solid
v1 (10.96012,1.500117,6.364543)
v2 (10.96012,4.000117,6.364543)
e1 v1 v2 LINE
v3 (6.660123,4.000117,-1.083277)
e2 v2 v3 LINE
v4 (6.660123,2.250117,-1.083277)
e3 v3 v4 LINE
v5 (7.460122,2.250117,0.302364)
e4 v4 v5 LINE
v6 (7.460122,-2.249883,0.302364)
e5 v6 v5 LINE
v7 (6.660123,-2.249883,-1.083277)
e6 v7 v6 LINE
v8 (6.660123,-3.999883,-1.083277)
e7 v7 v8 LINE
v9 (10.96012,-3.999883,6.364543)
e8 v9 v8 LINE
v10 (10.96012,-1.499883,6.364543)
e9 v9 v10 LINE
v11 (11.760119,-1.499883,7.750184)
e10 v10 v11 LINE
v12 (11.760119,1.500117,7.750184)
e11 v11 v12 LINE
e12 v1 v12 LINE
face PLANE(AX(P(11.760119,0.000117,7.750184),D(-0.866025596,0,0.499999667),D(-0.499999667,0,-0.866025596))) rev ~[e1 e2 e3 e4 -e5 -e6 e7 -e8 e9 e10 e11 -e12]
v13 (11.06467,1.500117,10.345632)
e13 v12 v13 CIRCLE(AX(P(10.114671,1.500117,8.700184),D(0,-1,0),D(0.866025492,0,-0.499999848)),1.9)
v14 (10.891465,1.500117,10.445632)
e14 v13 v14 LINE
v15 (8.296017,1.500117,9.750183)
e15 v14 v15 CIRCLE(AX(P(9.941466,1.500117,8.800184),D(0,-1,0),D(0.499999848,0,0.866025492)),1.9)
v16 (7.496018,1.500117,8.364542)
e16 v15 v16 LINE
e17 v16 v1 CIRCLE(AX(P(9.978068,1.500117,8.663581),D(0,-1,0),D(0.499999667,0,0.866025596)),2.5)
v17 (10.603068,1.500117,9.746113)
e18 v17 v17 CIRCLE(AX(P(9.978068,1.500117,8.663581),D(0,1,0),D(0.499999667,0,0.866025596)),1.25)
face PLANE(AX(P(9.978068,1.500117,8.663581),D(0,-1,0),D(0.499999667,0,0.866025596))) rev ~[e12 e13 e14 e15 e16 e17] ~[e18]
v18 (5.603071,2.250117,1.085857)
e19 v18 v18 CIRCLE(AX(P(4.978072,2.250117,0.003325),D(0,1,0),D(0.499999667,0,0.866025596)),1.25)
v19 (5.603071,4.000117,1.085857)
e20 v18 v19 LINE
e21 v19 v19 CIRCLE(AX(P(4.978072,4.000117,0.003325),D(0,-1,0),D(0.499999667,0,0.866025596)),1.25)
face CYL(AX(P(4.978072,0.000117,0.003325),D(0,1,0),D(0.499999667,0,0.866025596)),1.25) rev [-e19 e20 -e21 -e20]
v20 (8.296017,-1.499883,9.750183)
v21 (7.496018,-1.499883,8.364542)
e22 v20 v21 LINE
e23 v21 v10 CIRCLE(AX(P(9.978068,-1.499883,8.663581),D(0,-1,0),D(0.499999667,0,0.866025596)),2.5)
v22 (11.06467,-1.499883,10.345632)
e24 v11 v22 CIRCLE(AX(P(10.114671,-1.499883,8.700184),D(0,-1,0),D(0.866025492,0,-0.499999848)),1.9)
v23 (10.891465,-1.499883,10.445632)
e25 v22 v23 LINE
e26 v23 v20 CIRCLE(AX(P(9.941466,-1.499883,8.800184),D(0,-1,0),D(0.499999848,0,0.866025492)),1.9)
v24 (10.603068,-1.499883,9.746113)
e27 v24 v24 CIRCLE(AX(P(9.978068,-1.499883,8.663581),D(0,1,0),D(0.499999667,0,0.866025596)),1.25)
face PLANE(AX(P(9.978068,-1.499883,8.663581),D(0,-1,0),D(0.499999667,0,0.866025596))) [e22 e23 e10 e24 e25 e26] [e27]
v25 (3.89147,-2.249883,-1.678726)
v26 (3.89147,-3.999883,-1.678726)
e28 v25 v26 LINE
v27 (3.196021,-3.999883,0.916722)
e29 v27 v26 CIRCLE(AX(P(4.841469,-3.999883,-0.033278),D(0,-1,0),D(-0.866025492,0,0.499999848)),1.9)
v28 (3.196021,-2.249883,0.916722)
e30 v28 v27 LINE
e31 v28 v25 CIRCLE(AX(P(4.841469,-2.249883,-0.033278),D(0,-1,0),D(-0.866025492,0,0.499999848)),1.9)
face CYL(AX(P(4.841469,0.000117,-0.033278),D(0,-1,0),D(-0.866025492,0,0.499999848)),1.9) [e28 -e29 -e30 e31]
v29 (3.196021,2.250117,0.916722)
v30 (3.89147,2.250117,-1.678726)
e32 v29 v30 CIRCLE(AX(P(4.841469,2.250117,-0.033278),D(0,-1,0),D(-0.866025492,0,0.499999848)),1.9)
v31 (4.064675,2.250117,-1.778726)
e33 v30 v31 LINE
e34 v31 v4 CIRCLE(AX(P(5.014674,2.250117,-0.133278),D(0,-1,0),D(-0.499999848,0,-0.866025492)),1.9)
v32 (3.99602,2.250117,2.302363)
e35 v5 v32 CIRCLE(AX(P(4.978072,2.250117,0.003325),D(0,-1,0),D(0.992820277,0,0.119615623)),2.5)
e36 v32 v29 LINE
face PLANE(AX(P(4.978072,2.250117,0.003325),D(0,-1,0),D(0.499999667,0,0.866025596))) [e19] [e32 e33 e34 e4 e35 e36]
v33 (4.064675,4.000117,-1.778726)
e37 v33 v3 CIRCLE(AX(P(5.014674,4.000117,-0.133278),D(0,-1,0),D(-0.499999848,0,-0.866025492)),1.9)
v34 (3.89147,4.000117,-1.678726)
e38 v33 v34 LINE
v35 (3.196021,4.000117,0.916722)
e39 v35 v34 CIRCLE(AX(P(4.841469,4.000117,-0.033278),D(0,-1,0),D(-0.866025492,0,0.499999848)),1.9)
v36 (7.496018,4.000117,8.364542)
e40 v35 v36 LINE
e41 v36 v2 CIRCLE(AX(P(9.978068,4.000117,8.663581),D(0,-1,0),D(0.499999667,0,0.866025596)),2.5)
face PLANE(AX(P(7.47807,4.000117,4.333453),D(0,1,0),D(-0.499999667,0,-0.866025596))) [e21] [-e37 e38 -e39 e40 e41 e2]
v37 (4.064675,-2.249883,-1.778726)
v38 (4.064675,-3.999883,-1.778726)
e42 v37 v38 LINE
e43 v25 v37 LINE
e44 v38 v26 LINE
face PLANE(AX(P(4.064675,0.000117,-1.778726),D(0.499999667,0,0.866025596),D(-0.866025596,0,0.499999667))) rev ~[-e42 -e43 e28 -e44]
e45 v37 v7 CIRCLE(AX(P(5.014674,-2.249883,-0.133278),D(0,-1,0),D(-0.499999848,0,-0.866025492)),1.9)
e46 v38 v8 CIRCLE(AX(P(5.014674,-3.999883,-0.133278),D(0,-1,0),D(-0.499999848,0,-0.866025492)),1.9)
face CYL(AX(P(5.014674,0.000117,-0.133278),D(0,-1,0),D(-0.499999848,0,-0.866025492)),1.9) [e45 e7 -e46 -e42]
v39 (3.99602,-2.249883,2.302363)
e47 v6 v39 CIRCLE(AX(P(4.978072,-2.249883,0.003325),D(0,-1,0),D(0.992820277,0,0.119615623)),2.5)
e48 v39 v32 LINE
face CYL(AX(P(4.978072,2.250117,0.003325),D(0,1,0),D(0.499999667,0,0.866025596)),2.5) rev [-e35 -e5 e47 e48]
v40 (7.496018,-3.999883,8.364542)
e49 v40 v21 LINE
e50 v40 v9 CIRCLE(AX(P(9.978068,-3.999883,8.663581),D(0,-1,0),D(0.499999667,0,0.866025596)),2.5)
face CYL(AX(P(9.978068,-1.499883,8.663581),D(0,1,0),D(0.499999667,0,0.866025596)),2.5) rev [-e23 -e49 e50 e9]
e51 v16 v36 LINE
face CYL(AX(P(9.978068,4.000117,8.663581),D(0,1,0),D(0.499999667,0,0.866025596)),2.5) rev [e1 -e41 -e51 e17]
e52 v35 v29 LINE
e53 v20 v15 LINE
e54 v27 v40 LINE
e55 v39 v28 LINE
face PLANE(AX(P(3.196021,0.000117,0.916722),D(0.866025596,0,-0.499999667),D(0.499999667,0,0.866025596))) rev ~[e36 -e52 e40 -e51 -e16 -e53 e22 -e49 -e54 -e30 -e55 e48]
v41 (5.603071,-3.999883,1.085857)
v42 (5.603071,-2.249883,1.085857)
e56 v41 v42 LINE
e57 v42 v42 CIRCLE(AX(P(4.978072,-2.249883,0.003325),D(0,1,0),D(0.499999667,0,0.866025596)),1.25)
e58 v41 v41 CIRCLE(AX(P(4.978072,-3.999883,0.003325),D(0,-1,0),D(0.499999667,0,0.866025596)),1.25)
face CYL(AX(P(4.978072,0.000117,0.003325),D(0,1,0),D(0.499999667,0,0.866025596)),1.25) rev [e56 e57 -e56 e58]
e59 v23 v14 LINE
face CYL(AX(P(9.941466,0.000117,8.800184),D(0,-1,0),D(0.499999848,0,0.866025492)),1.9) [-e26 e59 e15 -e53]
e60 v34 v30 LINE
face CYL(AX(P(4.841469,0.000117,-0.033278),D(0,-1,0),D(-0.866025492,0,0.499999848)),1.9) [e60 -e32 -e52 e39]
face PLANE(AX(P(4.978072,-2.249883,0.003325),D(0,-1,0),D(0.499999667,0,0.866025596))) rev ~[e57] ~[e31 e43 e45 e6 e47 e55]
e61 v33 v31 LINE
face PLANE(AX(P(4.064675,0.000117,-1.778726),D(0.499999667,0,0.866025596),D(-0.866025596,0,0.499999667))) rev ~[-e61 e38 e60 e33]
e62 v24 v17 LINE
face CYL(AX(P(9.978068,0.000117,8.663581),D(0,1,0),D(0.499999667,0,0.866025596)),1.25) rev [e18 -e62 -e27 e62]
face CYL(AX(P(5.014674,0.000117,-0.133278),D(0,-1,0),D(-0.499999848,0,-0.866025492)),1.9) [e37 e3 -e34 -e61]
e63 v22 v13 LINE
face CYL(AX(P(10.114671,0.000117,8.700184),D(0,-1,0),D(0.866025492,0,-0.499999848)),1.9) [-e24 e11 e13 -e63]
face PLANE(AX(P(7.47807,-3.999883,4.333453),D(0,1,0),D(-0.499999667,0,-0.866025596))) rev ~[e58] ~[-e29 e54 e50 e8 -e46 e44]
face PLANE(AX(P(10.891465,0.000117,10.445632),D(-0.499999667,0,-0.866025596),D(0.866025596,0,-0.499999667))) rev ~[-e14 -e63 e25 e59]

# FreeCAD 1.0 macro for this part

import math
import FreeCAD as App
import Part
import Sketcher
from FreeCAD import Vector

doc = App.newDocument("Part")
body = doc.addObject("PartDesign::Body", "Body")

sketch1 = body.newObject("Sketcher::SketchObject", "Sketch")
sketch1.AttachmentSupport = (doc.getObject("XY_Plane"), [""])
sketch1.MapMode = "FlatFace"
sketch1.addGeometry(Part.Circle(Vector(0, 0, 0), Vector(0, 0, 1), 2.5), False)
sketch1.addConstraint([
    Sketcher.Constraint("Coincident", 0, 3, -1, 1),
    Sketcher.Constraint("Diameter", 0, 5.0),
])
pad1 = body.newObject("PartDesign::Pad", "Pad")
pad1.Profile = sketch1
pad1.Length = 2.5
body2 = doc.addObject("PartDesign::Body", "Body001")
doc.recompute()

body.Placement = App.Placement(Vector(0, 0, 0), App.Rotation(Vector(1, 0, 0), 90))
boolean = body2.newObject("PartDesign::Boolean", "Boolean")
boolean.Type = "Fuse"
boolean.addObjects([body])
body3 = doc.addObject("PartDesign::Body", "Body002")
doc.recompute()

body2.Placement = App.Placement(Vector(5, 4, 0), App.Rotation(Vector(0, 0, 1), 0))
boolean2 = body3.newObject("PartDesign::Boolean", "Boolean001")
boolean2.Type = "Fuse"
boolean2.addObjects([body2])
body4 = doc.addObject("PartDesign::Body", "Body003")

sketch2 = body4.newObject("Sketcher::SketchObject", "Sketch001")
sketch2.AttachmentSupport = (doc.getObject("XY_Plane003"), [""])
sketch2.MapMode = "FlatFace"
sketch2.addGeometry(Part.Circle(Vector(0, 0, 0), Vector(0, 0, 1), 2.5), False)
sketch2.addConstraint([
    Sketcher.Constraint("Coincident", 0, 3, -1, 1),
    Sketcher.Constraint("Diameter", 0, 5.0),
])
pad2 = body4.newObject("PartDesign::Pad", "Pad001")
pad2.Profile = sketch2
pad2.Length = 2.5
body5 = doc.addObject("PartDesign::Body", "Body004")
doc.recompute()

body4.Placement = App.Placement(Vector(0, 0, 0), App.Rotation(Vector(1, 0, 0), 90))
boolean3 = body5.newObject("PartDesign::Boolean", "Boolean002")
boolean3.Type = "Fuse"
boolean3.addObjects([body4])
body6 = doc.addObject("PartDesign::Body", "Body005")
doc.recompute()

body5.Placement = App.Placement(Vector(5, -1.5, 0), App.Rotation(Vector(0, 0, 1), 0))
boolean4 = body6.newObject("PartDesign::Boolean", "Boolean003")
boolean4.Type = "Fuse"
boolean4.addObjects([body5])
body7 = doc.addObject("PartDesign::Body", "Body006")

sketch3 = body7.newObject("Sketcher::SketchObject", "Sketch002")
sketch3.AttachmentSupport = (doc.getObject("XY_Plane006"), [""])
sketch3.MapMode = "FlatFace"
sketch3.addGeometry(Part.Circle(Vector(0, 0, 0), Vector(0, 0, 1), 2.5), False)
sketch3.addConstraint([
    Sketcher.Constraint("Coincident", 0, 3, -1, 1),
    Sketcher.Constraint("Diameter", 0, 5.0),
])
pad3 = body7.newObject("PartDesign::Pad", "Pad002")
pad3.Profile = sketch3
pad3.Length = 4.5
body8 = doc.addObject("PartDesign::Body", "Body007")
doc.recompute()

body7.Placement = App.Placement(Vector(0, 0, 0), App.Rotation(Vector(1, 0, 0), 90))
boolean5 = body8.newObject("PartDesign::Boolean", "Boolean004")
boolean5.Type = "Fuse"
boolean5.addObjects([body7])
body9 = doc.addObject("PartDesign::Body", "Body008")
body9.AllowCompound = True
doc.recompute()

body8.Placement = App.Placement(Vector(-5, 2.25, 0), App.Rotation(Vector(0, 0, 1), 0))
boolean6 = body9.newObject("PartDesign::Boolean", "Boolean005")
boolean6.Type = "Fuse"
boolean6.addObjects([body8])
doc.recompute()

boolean7 = body9.newObject("PartDesign::Boolean", "Boolean006")
boolean7.Type = "Fuse"
boolean7.addObjects([body3])
doc.recompute()

boolean8 = body9.newObject("PartDesign::Boolean", "Boolean007")
boolean8.Type = "Fuse"
boolean8.addObjects([body6])
body10 = doc.addObject("PartDesign::Body", "Body009")

sketch4 = body10.newObject("Sketcher::SketchObject", "Sketch003")
sketch4.AttachmentSupport = (doc.getObject("XZ_Plane009"), [""])
sketch4.MapMode = "FlatFace"
sketch4.addGeometry([
    Part.LineSegment(Vector(5.1, 2, 0), Vector(-5.1, 2, 0)),
    Part.ArcOfCircle(Part.Circle(Vector(-5.1, 0.1, 0), Vector(0, 0, 1), 1.9), math.radians(90), math.radians(180)),
    Part.LineSegment(Vector(-7, 0.1, 0), Vector(-7, -0.1, 0)),
    Part.ArcOfCircle(Part.Circle(Vector(-5.1, -0.1, 0), Vector(0, 0, 1), 1.9), math.radians(180), math.radians(270)),
    Part.LineSegment(Vector(-5.1, -2, 0), Vector(5.1, -2, 0)),
    Part.ArcOfCircle(Part.Circle(Vector(5.1, -0.1, 0), Vector(0, 0, 1), 1.9), math.radians(-90), math.radians(0)),
    Part.LineSegment(Vector(7, -0.1, 0), Vector(7, 0.1, 0)),
    Part.ArcOfCircle(Part.Circle(Vector(5.1, 0.1, 0), Vector(0, 0, 1), 1.9), math.radians(0), math.radians(90)),
    Part.Circle(Vector(5, 0, 0), Vector(0, 0, 1), 1.25),
    Part.Circle(Vector(-5, 0, 0), Vector(0, 0, 1), 1.25),
], False)
sketch4.addConstraint([
    Sketcher.Constraint("Tangent", 0, 2, 1, 1),
    Sketcher.Constraint("Tangent", 1, 2, 2, 1),
    Sketcher.Constraint("Tangent", 2, 2, 3, 1),
    Sketcher.Constraint("Tangent", 3, 2, 4, 1),
    Sketcher.Constraint("Tangent", 4, 2, 5, 1),
    Sketcher.Constraint("Tangent", 5, 2, 6, 1),
    Sketcher.Constraint("Tangent", 6, 2, 7, 1),
    Sketcher.Constraint("Tangent", 7, 2, 0, 1),
    Sketcher.Constraint("Horizontal", 0),
    Sketcher.Constraint("Vertical", 2),
    Sketcher.Constraint("Horizontal", 4),
    Sketcher.Constraint("Vertical", 6),
    Sketcher.Constraint("Equal", 1, 3),
    Sketcher.Constraint("Equal", 3, 5),
    Sketcher.Constraint("Equal", 5, 7),
    Sketcher.Constraint("Equal", 8, 9),
    Sketcher.Constraint("Symmetric", 1, 3, 5, 3, -1, 1),
    Sketcher.Constraint("Symmetric", 8, 3, 9, 3, -1, 1),
    Sketcher.Constraint("PointOnObject", 8, 3, -1),
    Sketcher.Constraint("Diameter", 8, 2.5),
    Sketcher.Constraint("Radius", 1, 1.9),
    Sketcher.Constraint("DistanceX", 0, 2, 0, 1, 10.2),
    Sketcher.Constraint("DistanceY", 2, 2, 2, 1, 0.2),
    Sketcher.Constraint("DistanceX", -1, 1, 8, 3, 5.0),
])
pad4 = body10.newObject("PartDesign::Pad", "Pad003")
pad4.Profile = sketch4
pad4.Length = 8
pad4.Midplane = True
doc.recompute()

boolean9 = body10.newObject("PartDesign::Boolean", "Boolean008")
boolean9.Type = "Cut"
boolean9.addObjects([body9])
body11 = doc.addObject("PartDesign::Body", "Body010")
doc.recompute()

body10.Placement = App.Placement(Vector(0, 0, 0), App.Rotation(Vector(0, 1, 0), 299.999978))
boolean10 = body11.newObject("PartDesign::Boolean", "Boolean009")
boolean10.Type = "Fuse"
boolean10.addObjects([body10])
body12 = doc.addObject("PartDesign::Body", "Body011")
doc.recompute()

body11.Placement = App.Placement(Vector(7.47807, 0.000117, 4.333453), App.Rotation(Vector(0, 0, 1), 0))
boolean11 = body12.newObject("PartDesign::Boolean", "Boolean010")
boolean11.Type = "Fuse"
boolean11.addObjects([body11])

doc.recompute()
